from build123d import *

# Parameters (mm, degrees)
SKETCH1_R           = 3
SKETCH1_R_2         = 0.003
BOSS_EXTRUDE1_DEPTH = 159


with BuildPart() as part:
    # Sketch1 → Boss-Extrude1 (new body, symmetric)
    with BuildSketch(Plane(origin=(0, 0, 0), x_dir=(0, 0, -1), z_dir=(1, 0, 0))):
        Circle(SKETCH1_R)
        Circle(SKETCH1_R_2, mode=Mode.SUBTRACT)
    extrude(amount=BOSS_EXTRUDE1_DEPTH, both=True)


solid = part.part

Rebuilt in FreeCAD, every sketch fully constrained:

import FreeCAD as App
import Part
import Sketcher

V = App.Vector
Q = App.Units.Quantity

doc = App.newDocument("Part")
body = doc.addObject("PartDesign::Body", "Body")

# Sketch on YZ plane
sketch1 = body.newObject("Sketcher::SketchObject", "Sketch")
sketch1.AttachmentSupport = (doc.getObject("YZ_Plane"), [""])
sketch1.MapMode = "FlatFace"
sketch1.addGeometry(Part.Circle(V(0, 0, 0), V(0, 0, 1), 3), False)
sketch1.addGeometry(Part.Circle(V(0, 0, 0), V(0, 0, 1), 0.003), False)
sketch1.addConstraint(Sketcher.Constraint("Coincident", 0, 3, -1, 1))
sketch1.addConstraint(Sketcher.Constraint("Coincident", 1, 3, -1, 1))
sketch1.addConstraint(Sketcher.Constraint("Diameter", 0, Q("6 mm")))
sketch1.addConstraint(Sketcher.Constraint("Diameter", 1, Q("0.006 mm")))
pad1 = body.newObject("PartDesign::Pad", "Pad")
pad1.Profile = sketch1
pad1.Length = 318
pad1.Midplane = True

doc.recompute()
